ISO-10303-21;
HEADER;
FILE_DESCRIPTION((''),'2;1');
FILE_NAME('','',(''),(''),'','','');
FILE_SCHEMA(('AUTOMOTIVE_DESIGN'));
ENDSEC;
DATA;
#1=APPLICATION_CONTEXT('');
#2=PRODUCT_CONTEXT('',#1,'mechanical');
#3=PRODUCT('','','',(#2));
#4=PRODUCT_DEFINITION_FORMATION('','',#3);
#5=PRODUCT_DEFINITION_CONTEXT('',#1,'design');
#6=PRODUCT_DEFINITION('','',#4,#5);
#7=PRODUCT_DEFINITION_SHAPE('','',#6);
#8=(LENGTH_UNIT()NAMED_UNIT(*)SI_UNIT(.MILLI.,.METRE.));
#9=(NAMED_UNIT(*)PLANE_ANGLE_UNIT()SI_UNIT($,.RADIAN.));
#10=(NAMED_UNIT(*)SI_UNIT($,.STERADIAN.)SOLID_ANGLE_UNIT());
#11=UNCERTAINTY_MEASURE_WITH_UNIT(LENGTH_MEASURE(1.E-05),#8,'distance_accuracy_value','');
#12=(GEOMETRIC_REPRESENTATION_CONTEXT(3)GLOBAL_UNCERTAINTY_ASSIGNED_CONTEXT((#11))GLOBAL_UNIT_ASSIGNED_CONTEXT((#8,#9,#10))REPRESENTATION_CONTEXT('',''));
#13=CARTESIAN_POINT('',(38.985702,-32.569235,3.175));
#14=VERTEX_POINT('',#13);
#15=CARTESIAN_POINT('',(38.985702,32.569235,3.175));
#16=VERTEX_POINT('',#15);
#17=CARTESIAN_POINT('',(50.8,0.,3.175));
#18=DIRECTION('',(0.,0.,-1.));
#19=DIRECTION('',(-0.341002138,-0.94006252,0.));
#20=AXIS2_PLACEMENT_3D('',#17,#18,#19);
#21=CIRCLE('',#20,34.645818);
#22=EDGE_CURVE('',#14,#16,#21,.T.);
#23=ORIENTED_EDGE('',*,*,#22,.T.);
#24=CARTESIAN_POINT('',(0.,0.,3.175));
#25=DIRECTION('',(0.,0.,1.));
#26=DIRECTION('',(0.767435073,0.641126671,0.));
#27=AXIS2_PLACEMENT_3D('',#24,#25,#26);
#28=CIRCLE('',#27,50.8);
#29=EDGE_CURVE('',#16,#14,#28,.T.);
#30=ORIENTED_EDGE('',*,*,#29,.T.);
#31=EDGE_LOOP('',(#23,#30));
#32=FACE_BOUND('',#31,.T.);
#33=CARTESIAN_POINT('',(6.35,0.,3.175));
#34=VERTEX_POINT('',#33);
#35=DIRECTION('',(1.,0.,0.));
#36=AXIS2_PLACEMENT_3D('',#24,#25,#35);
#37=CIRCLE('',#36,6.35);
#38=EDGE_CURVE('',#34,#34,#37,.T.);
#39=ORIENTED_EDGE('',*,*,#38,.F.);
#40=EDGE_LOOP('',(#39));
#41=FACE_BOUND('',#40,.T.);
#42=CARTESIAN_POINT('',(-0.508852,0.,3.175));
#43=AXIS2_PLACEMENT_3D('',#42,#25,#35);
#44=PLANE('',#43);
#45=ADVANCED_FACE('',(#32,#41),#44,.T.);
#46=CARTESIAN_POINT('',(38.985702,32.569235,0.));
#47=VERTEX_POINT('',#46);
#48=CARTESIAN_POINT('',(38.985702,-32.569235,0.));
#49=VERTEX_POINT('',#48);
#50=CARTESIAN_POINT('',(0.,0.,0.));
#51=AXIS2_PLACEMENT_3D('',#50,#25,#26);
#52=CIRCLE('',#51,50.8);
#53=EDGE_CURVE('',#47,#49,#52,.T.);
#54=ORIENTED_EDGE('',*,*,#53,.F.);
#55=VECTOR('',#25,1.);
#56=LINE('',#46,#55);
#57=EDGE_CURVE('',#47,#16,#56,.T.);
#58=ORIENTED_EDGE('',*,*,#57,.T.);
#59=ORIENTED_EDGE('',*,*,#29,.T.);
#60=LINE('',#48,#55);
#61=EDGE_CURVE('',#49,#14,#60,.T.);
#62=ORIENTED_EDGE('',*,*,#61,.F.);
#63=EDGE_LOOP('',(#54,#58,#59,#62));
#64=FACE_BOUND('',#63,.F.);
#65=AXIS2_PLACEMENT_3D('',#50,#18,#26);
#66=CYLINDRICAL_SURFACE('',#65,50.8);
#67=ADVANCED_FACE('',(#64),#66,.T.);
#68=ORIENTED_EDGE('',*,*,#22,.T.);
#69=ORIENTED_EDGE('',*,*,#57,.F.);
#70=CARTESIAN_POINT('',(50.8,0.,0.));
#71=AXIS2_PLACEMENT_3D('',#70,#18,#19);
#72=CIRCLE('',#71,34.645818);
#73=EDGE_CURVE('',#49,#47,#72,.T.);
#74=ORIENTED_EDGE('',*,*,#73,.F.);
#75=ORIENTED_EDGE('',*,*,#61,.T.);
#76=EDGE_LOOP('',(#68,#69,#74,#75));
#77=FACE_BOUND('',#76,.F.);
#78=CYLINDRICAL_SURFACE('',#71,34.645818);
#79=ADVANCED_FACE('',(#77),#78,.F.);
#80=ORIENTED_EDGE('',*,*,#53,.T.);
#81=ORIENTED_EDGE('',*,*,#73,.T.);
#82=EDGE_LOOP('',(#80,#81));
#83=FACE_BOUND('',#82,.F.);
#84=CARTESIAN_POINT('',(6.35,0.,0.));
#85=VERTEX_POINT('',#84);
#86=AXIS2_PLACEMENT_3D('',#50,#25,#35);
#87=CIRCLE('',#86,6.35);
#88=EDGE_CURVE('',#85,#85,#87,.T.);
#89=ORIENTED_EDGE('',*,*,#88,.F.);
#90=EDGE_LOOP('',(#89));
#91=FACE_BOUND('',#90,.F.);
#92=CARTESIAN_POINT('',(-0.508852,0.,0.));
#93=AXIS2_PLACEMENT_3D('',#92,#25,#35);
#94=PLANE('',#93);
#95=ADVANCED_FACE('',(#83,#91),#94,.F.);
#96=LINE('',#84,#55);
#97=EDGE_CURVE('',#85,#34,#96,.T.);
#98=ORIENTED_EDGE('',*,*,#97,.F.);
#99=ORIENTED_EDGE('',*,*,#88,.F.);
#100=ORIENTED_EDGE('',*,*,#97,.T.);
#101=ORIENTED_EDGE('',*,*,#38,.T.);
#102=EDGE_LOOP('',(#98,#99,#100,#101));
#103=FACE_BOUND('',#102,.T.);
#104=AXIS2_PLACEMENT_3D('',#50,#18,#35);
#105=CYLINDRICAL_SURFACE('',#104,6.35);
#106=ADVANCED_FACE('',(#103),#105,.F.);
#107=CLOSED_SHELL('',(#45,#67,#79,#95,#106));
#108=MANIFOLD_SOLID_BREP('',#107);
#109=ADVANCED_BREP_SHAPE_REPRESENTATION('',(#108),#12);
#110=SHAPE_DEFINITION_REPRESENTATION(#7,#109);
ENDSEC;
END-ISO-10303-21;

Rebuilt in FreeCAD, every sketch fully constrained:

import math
import FreeCAD as App
import Part
import Sketcher
from FreeCAD import Vector
Q = App.Units.Quantity

doc = App.newDocument("Part")
params = doc.addObject("Spreadsheet::Sheet", "Params")
for row, (alias, value) in enumerate([
    ("sketch1_radius", "2 in"),
    ("sketch1_diameter", "0.5 in"),
    ("pad1_length", "0.125 in"),
], start=1):
    params.set(f"A{row}", alias)
    params.set(f"B{row}", "=" + value)
    params.setAlias(f"B{row}", alias)

body = doc.addObject("PartDesign::Body", "Body")

# Sketch on XY plane
sketch1 = doc.addObject("Sketcher::SketchObject", "Sketch")
body.addObject(sketch1)
sketch1.AttachmentSupport = (doc.XY_Plane, [""])
sketch1.MapMode = "FlatFace"
sketch1.addGeometry([
    Part.ArcOfCircle(Part.Circle(Vector(50.8, 0, 0), Vector(0, 0, 1), 34.645818), math.radians(109.937941), math.radians(250.062059)),
    Part.ArcOfCircle(Part.Circle(Vector(0, 0, 0), Vector(0, 0, 1), 50.8), math.radians(39.875884), math.radians(320.124116)),
    Part.Circle(Vector(0, 0, 0), Vector(0, 0, 1), 6.35),
], False)
sketch1.addConstraint([
    Sketcher.Constraint("Coincident", 0, 1, 1, 1),
    Sketcher.Constraint("Coincident", 1, 2, 0, 2),
    Sketcher.Constraint("Coincident", 1, 3, -1, 1),
    Sketcher.Constraint("Coincident", 2, 3, -1, 1),
    Sketcher.Constraint("PointOnObject", 0, 3, -1),
    Sketcher.Constraint("Radius", 1, Q("2 in")),
    Sketcher.Constraint("Diameter", 2, Q("0.5 in")),
    Sketcher.Constraint("DistanceX", -1, 1, 0, 3, Q("2 in")),
    Sketcher.Constraint("Radius", 0, Q("34.645818 mm")),
])
sketch1.setExpression("Constraints[5]", "Params.sketch1_radius")
sketch1.setExpression("Constraints[6]", "Params.sketch1_diameter")
pad1 = doc.addObject("PartDesign::Pad", "Pad")
body.addObject(pad1)
pad1.Profile = sketch1
pad1.setExpression("Length", "Params.pad1_length")

doc.recompute()
